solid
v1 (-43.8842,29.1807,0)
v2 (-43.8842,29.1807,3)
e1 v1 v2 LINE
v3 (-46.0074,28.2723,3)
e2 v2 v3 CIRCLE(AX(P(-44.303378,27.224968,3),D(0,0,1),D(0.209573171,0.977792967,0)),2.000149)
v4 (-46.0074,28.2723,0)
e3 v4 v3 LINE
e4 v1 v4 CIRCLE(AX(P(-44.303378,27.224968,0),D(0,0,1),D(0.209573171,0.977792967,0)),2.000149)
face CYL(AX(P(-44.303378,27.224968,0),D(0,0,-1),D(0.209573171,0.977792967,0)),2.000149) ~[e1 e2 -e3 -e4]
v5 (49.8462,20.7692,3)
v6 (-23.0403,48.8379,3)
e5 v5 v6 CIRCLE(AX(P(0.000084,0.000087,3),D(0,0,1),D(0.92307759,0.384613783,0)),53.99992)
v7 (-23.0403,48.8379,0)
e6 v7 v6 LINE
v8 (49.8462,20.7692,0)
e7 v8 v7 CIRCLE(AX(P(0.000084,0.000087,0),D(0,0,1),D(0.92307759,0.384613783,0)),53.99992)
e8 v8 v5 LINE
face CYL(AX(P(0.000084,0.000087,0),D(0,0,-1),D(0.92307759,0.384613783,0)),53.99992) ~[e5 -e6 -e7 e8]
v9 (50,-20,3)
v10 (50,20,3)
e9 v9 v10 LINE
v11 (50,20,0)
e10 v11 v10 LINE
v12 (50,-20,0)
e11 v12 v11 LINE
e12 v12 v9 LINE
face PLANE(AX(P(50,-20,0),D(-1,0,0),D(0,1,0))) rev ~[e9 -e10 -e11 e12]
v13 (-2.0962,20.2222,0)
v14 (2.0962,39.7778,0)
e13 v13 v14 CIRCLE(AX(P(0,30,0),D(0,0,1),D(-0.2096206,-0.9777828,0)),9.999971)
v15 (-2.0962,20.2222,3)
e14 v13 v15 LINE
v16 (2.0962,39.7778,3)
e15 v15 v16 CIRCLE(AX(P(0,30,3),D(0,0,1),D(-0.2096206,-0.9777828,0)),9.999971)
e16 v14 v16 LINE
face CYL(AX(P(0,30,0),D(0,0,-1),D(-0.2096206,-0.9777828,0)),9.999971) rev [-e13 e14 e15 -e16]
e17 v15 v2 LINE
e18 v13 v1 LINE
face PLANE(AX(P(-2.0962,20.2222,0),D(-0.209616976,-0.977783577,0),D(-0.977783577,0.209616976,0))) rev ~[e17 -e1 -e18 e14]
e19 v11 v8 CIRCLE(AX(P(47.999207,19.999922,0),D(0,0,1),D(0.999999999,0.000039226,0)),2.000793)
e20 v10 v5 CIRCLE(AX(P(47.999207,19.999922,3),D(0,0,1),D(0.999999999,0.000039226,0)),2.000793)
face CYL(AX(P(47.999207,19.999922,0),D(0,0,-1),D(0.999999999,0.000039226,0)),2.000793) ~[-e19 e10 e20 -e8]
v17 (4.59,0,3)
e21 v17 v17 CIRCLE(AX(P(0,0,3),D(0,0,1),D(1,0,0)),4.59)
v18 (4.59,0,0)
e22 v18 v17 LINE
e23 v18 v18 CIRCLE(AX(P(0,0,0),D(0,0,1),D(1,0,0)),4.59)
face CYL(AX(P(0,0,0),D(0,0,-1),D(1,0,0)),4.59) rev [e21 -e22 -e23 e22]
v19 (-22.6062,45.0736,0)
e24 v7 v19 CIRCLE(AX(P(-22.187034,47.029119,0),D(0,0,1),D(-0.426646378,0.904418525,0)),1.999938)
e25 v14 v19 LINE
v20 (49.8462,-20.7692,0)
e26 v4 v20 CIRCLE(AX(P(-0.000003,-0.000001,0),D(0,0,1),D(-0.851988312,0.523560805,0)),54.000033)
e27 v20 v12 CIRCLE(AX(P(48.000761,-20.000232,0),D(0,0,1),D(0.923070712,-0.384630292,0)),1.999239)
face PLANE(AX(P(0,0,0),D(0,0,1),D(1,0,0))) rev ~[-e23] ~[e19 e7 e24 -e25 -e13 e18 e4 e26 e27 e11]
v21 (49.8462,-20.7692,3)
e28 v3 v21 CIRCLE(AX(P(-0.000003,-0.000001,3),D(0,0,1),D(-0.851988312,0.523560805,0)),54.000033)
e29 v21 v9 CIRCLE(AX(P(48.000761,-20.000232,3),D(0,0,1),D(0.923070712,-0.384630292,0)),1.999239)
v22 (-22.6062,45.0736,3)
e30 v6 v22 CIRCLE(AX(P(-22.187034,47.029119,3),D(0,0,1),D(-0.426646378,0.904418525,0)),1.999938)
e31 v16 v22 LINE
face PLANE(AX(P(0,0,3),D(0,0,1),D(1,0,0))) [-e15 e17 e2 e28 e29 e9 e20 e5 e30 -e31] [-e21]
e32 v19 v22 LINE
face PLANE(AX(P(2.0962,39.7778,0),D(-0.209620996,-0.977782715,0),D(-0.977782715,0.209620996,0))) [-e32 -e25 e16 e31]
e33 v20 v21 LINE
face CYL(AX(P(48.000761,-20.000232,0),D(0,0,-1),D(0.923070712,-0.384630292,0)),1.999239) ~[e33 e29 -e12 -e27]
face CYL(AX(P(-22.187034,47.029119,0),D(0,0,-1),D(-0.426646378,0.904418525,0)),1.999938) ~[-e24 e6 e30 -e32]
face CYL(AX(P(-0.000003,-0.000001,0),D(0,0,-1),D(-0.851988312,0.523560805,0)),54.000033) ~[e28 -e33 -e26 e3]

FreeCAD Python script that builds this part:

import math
import FreeCAD as App
import Part
import Sketcher

V = App.Vector
Q = App.Units.Quantity

doc = App.newDocument("Part")
body = doc.addObject("PartDesign::Body", "Body")

# Sketch on XY plane
sketch1 = body.newObject("Sketcher::SketchObject", "Sketch")
sketch1.AttachmentSupport = (doc.getObject("XY_Plane"), [""])
sketch1.MapMode = "FlatFace"
sketch1.addGeometry([
    Part.ArcOfCircle(Part.Circle(V(0, 30, 0), V(0, 0, 1), 10), math.radians(-102), math.radians(78)),  # 0
    Part.LineSegment(V(-2.1, 20.2, 0), V(-43.9, 29.2, 0)),  # 1
    Part.ArcOfCircle(Part.Circle(V(-44.3, 27.2, 0), V(0, 0, 1), 2), math.radians(78), math.radians(148)),  # 2
    Part.ArcOfCircle(Part.Circle(V(0, 0, 0), V(0, 0, 1), 54), math.radians(148), math.radians(337)),  # 3
    Part.ArcOfCircle(Part.Circle(V(48, -20, 0), V(0, 0, 1), 2), math.radians(-23), math.radians(0)),  # 4
    Part.LineSegment(V(50, -20, 0), V(50, 20, 0)),  # 5
    Part.ArcOfCircle(Part.Circle(V(48, 20, 0), V(0, 0, 1), 2), math.radians(0), math.radians(23)),  # 6
    Part.ArcOfCircle(Part.Circle(V(0, 0, 0), V(0, 0, 1), 54), math.radians(23), math.radians(115)),  # 7
    Part.ArcOfCircle(Part.Circle(V(-22.2, 47, 0), V(0, 0, 1), 2), math.radians(115), math.radians(258)),  # 8
    Part.LineSegment(V(-22.6, 45.1, 0), V(2.1, 39.8, 0)),  # 9
    Part.Circle(V(0, 0, 0), V(0, 0, 1), 4.6),  # 10
], False)
sketch1.addConstraint([
    Sketcher.Constraint("Tangent", 0, 1, 1, 1),
    Sketcher.Constraint("Tangent", 1, 2, 2, 1),
    Sketcher.Constraint("Tangent", 2, 2, 3, 1),
    Sketcher.Constraint("Tangent", 3, 2, 4, 1),
    Sketcher.Constraint("Tangent", 4, 2, 5, 1),
    Sketcher.Constraint("Tangent", 5, 2, 6, 1),
    Sketcher.Constraint("Tangent", 6, 2, 7, 1),
    Sketcher.Constraint("Tangent", 7, 2, 8, 1),
    Sketcher.Constraint("Tangent", 8, 2, 9, 1),
    Sketcher.Constraint("Tangent", 9, 2, 0, 2),
    Sketcher.Constraint("Vertical", 5),
    Sketcher.Constraint("Coincident", 3, 3, -1, 1),
    Sketcher.Constraint("Coincident", 7, 3, -1, 1),
    Sketcher.Constraint("Coincident", 10, 3, -1, 1),
    Sketcher.Constraint("Equal", 2, 4),
    Sketcher.Constraint("Equal", 4, 6),
    Sketcher.Constraint("Equal", 3, 7),
    Sketcher.Constraint("Equal", 6, 8),
    Sketcher.Constraint("PointOnObject", 0, 3, -2),
    Sketcher.Constraint("Parallel", 1, 9),
    Sketcher.Constraint("Radius", 0, Q("10 mm")),
    Sketcher.Constraint("Radius", 2, Q("2 mm")),
    Sketcher.Constraint("Radius", 3, Q("54 mm")),
    Sketcher.Constraint("Diameter", 10, Q("9.18 mm")),
    Sketcher.Constraint("DistanceY", -1, 1, 0, 3, Q("30 mm")),
    Sketcher.Constraint("DistanceY", 4, 3, -1, 1, Q("20 mm")),
    Sketcher.Constraint("Angle", 1, Q("167.9 deg")),
])
pad1 = body.newObject("PartDesign::Pad", "Pad")
pad1.Profile = sketch1
pad1.Length = 3

doc.recompute()
